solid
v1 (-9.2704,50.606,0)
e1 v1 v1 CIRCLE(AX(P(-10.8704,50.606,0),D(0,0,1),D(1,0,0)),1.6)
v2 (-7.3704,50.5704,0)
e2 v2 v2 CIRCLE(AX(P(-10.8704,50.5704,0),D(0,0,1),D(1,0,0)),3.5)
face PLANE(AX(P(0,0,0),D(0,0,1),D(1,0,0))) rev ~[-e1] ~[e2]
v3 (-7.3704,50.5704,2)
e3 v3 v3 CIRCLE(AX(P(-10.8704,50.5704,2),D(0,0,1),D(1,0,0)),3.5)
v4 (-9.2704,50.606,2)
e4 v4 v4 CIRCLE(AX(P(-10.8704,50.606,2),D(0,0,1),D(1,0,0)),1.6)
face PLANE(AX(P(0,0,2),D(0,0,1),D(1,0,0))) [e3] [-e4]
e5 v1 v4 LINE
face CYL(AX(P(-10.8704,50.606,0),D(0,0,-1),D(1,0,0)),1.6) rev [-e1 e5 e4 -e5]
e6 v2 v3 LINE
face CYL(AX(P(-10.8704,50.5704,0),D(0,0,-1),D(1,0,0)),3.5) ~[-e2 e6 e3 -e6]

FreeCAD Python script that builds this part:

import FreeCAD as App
import Part
import Sketcher

doc = App.newDocument("Part")
params = doc.addObject("Spreadsheet::Sheet", "Params")
for row, (alias, value) in enumerate([
    ("sketch1_diameter", "7 mm"),
    ("sketch1_diameter2", "3.2 mm"),
    ("pad1_length", "2 mm"),
], start=1):
    params.set(f"A{row}", alias)
    params.set(f"B{row}", "=" + value)
    params.setAlias(f"B{row}", alias)

body = doc.addObject("PartDesign::Body", "Body")

# Sketch on XY plane
sketch1 = body.newObject("Sketcher::SketchObject", "Sketch")
sketch1.AttachmentSupport = (doc.getObject("XY_Plane"), [""])
sketch1.MapMode = "FlatFace"
sketch1.addGeometry([
    Part.Circle(App.Vector(-10.9, 50.6, 0), App.Vector(0, 0, 1), 3.5),
    Part.Circle(App.Vector(-10.9, 50.6, 0), App.Vector(0, 0, 1), 1.6),
], False)
sketch1.addConstraint([
    Sketcher.Constraint("Vertical", 0, 3, 1, 3),
    Sketcher.Constraint("Diameter", 0, 7.0),
    Sketcher.Constraint("Diameter", 1, 3.2),
    Sketcher.Constraint("DistanceY", -1, 1, 1, 3, 50.606),
    Sketcher.Constraint("DistanceX", 0, 3, -1, 1, 10.8704),
    Sketcher.Constraint("DistanceY", -1, 1, 0, 3, 50.5704),
])
sketch1.setExpression("Constraints[1]", "Params.sketch1_diameter")
sketch1.setExpression("Constraints[2]", "Params.sketch1_diameter2")
pad1 = body.newObject("PartDesign::Pad", "Pad")
pad1.Profile = sketch1
pad1.setExpression("Length", "Params.pad1_length")

doc.recompute()
